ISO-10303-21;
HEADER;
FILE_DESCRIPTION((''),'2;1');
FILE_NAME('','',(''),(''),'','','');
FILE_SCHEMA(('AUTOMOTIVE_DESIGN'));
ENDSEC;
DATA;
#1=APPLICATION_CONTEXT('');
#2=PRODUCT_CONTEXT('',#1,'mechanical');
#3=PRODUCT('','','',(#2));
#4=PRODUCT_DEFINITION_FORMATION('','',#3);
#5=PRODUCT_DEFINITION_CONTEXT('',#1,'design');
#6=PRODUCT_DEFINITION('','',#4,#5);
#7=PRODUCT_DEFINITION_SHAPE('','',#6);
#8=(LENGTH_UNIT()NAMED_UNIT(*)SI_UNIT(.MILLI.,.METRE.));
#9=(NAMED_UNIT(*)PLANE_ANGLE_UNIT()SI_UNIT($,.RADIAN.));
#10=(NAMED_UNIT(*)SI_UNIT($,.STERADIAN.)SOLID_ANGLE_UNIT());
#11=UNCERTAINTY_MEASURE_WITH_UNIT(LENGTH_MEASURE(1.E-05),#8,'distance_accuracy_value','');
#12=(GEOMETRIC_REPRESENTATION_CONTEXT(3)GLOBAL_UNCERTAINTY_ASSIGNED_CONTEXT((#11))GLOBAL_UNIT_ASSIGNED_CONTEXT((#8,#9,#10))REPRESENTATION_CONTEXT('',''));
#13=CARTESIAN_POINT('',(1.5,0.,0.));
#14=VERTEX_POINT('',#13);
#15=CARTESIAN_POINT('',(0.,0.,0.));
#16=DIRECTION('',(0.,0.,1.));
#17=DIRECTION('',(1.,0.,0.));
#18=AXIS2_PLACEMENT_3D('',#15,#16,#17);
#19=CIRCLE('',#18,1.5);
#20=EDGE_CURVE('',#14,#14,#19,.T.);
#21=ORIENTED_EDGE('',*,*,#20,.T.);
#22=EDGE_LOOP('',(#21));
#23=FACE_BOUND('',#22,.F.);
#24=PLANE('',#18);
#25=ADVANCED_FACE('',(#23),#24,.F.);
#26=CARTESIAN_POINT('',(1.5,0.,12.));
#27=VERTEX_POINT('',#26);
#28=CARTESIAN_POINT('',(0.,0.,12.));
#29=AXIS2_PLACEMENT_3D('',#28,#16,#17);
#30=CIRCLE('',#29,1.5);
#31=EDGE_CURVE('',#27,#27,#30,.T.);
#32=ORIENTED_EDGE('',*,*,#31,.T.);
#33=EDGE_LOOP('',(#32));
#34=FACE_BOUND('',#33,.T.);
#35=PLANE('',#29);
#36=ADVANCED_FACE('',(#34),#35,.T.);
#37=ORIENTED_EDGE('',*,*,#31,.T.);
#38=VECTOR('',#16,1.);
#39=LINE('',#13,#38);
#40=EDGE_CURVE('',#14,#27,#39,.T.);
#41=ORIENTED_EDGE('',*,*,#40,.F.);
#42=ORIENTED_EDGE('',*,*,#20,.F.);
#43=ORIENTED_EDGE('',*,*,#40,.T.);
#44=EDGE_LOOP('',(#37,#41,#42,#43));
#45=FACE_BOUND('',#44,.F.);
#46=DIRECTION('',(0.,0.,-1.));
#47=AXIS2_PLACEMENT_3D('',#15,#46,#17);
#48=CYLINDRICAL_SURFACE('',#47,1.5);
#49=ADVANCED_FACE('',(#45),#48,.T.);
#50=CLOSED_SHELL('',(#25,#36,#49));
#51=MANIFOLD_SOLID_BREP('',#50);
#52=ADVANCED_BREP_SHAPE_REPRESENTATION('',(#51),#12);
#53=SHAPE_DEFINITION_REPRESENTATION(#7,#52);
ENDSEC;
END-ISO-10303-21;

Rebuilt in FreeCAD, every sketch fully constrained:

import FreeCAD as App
import Part
import Sketcher

V = App.Vector
Q = App.Units.Quantity

doc = App.newDocument("Part")
params = doc.addObject("Spreadsheet::Sheet", "Params")
for row, (alias, value) in enumerate([
    ("sketch1_diameter", "3 mm"),
    ("pad1_length", "12 mm"),
], start=1):
    params.set(f"A{row}", alias)
    params.set(f"B{row}", "=" + value)
    params.setAlias(f"B{row}", alias)

body = doc.addObject("PartDesign::Body", "Body")

# Sketch on XY plane
sketch1 = body.newObject("Sketcher::SketchObject", "Sketch")
sketch1.AttachmentSupport = (doc.getObject("XY_Plane"), [""])
sketch1.MapMode = "FlatFace"
sketch1.addGeometry(Part.Circle(V(0, 0, 0), V(0, 0, 1), 1.5), False)
sketch1.addConstraint(Sketcher.Constraint("Coincident", 0, 3, -1, 1))
sketch1.addConstraint(Sketcher.Constraint("Diameter", 0, Q("3 mm")))
sketch1.setExpression("Constraints[1]", "Params.sketch1_diameter")
pad1 = body.newObject("PartDesign::Pad", "Pad")
pad1.Profile = sketch1
pad1.setExpression("Length", "Params.pad1_length")

doc.recompute()
